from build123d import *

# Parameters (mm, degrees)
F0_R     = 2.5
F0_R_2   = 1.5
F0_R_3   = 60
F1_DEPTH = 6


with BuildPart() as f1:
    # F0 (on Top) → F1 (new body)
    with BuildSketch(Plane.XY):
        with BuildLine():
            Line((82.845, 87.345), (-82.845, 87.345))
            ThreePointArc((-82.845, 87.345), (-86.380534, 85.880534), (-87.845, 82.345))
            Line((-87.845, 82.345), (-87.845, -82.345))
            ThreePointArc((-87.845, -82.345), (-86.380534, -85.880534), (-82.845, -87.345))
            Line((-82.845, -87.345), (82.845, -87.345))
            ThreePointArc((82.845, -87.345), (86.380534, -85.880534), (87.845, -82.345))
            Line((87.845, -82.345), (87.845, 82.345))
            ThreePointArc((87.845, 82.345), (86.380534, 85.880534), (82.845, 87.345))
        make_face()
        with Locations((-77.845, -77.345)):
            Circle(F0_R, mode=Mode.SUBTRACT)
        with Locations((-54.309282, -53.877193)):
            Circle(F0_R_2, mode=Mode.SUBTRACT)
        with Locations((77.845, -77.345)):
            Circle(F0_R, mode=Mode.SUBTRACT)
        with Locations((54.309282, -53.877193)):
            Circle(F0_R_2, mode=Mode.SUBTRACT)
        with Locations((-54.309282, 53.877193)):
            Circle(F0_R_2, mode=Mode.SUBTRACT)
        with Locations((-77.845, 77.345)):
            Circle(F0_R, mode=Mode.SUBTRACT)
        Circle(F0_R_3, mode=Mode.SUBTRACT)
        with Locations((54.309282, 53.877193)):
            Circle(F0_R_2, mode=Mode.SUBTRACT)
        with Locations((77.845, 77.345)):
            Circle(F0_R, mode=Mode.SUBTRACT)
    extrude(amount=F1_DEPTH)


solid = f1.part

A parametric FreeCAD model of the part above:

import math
import FreeCAD as App
import Part
import Sketcher

V = App.Vector
Q = App.Units.Quantity

doc = App.newDocument("Part")
params = doc.addObject("Spreadsheet::Sheet", "Params")
for row, (alias, value) in enumerate([
    ("sketch1_diameter", "5 mm"),
    ("sketch1_diameter2", "3 mm"),
    ("sketch1_diameter3", "120 mm"),
    ("sketch1_radius", "5 mm"),
    ("sketch1_width", "165.69 mm"),
    ("pad1_length", "6 mm"),
], start=1):
    params.set(f"A{row}", alias)
    params.set(f"B{row}", "=" + value)
    params.setAlias(f"B{row}", alias)

body = doc.addObject("PartDesign::Body", "Body")

# Sketch on XY plane
sketch1 = doc.addObject("Sketcher::SketchObject", "Sketch")
body.addObject(sketch1)
sketch1.AttachmentSupport = (doc.XY_Plane, [""])
sketch1.MapMode = "FlatFace"
sketch1.addGeometry(Part.LineSegment(V(82.8, 87.3, 0), V(-82.8, 87.3, 0)), False)
sketch1.addGeometry(Part.ArcOfCircle(Part.Circle(V(-82.8, 82.3, 0), V(0, 0, 1), 5), math.radians(90), math.radians(180)), False)
sketch1.addGeometry(Part.LineSegment(V(-87.8, 82.3, 0), V(-87.8, -82.3, 0)), False)
sketch1.addGeometry(Part.ArcOfCircle(Part.Circle(V(-82.8, -82.3, 0), V(0, 0, 1), 5), math.radians(180), math.radians(270)), False)
sketch1.addGeometry(Part.LineSegment(V(-82.8, -87.3, 0), V(82.8, -87.3, 0)), False)
sketch1.addGeometry(Part.ArcOfCircle(Part.Circle(V(82.8, -82.3, 0), V(0, 0, 1), 5), math.radians(-90), math.radians(0)), False)
sketch1.addGeometry(Part.LineSegment(V(87.8, -82.3, 0), V(87.8, 82.3, 0)), False)
sketch1.addGeometry(Part.ArcOfCircle(Part.Circle(V(82.8, 82.3, 0), V(0, 0, 1), 5), math.radians(0), math.radians(90)), False)
sketch1.addGeometry(Part.Circle(V(-77.8, -77.3, 0), V(0, 0, 1), 2.5), False)
sketch1.addGeometry(Part.Circle(V(-54.3, -53.9, 0), V(0, 0, 1), 1.5), False)
sketch1.addGeometry(Part.Circle(V(77.8, -77.3, 0), V(0, 0, 1), 2.5), False)
sketch1.addGeometry(Part.Circle(V(54.3, -53.9, 0), V(0, 0, 1), 1.5), False)
sketch1.addGeometry(Part.Circle(V(-54.3, 53.9, 0), V(0, 0, 1), 1.5), False)
sketch1.addGeometry(Part.Circle(V(-77.8, 77.3, 0), V(0, 0, 1), 2.5), False)
sketch1.addGeometry(Part.Circle(V(0, 0, 0), V(0, 0, 1), 60), False)
sketch1.addGeometry(Part.Circle(V(54.3, 53.9, 0), V(0, 0, 1), 1.5), False)
sketch1.addGeometry(Part.Circle(V(77.8, 77.3, 0), V(0, 0, 1), 2.5), False)
sketch1.addConstraint(Sketcher.Constraint("Tangent", 0, 2, 1, 1))
sketch1.addConstraint(Sketcher.Constraint("Tangent", 1, 2, 2, 1))
sketch1.addConstraint(Sketcher.Constraint("Tangent", 2, 2, 3, 1))
sketch1.addConstraint(Sketcher.Constraint("Tangent", 3, 2, 4, 1))
sketch1.addConstraint(Sketcher.Constraint("Tangent", 4, 2, 5, 1))
sketch1.addConstraint(Sketcher.Constraint("Tangent", 5, 2, 6, 1))
sketch1.addConstraint(Sketcher.Constraint("Tangent", 6, 2, 7, 1))
sketch1.addConstraint(Sketcher.Constraint("Tangent", 7, 2, 0, 1))
sketch1.addConstraint(Sketcher.Constraint("Horizontal", 0))
sketch1.addConstraint(Sketcher.Constraint("Vertical", 2))
sketch1.addConstraint(Sketcher.Constraint("Horizontal", 4))
sketch1.addConstraint(Sketcher.Constraint("Vertical", 6))
sketch1.addConstraint(Sketcher.Constraint("Coincident", 14, 3, -1, 1))
sketch1.addConstraint(Sketcher.Constraint("Equal", 1, 3))
sketch1.addConstraint(Sketcher.Constraint("Equal", 3, 5))
sketch1.addConstraint(Sketcher.Constraint("Equal", 5, 7))
sketch1.addConstraint(Sketcher.Constraint("Equal", 8, 10))
sketch1.addConstraint(Sketcher.Constraint("Equal", 9, 11))
sketch1.addConstraint(Sketcher.Constraint("Equal", 11, 12))
sketch1.addConstraint(Sketcher.Constraint("Equal", 10, 13))
sketch1.addConstraint(Sketcher.Constraint("Equal", 12, 15))
sketch1.addConstraint(Sketcher.Constraint("Equal", 13, 16))
sketch1.addConstraint(Sketcher.Constraint("Symmetric", 1, 3, 5, 3, -1, 1))
sketch1.addConstraint(Sketcher.Constraint("Symmetric", 11, 3, 12, 3, -1, 1))
sketch1.addConstraint(Sketcher.Constraint("Symmetric", 10, 3, 13, 3, -1, 1))
sketch1.addConstraint(Sketcher.Constraint("Symmetric", 9, 3, 15, 3, -1, 1))
sketch1.addConstraint(Sketcher.Constraint("Symmetric", 8, 3, 16, 3, -1, 1))
sketch1.addConstraint(Sketcher.Constraint("Symmetric", 8, 3, 10, 3, -2))
sketch1.addConstraint(Sketcher.Constraint("Symmetric", 9, 3, 11, 3, -2))
sketch1.addConstraint(Sketcher.Constraint("Diameter", 8, Q("5 mm")))
sketch1.addConstraint(Sketcher.Constraint("Diameter", 9, Q("3 mm")))
sketch1.addConstraint(Sketcher.Constraint("Diameter", 14, Q("120 mm")))
sketch1.addConstraint(Sketcher.Constraint("Radius", 1, Q("5 mm")))
sketch1.addConstraint(Sketcher.Constraint("DistanceX", 3, 3, 8, 3, Q("5 mm")))
sketch1.addConstraint(Sketcher.Constraint("DistanceY", 3, 3, 8, 3, Q("5 mm")))
sketch1.addConstraint(Sketcher.Constraint("DistanceX", 0, 2, 0, 1, Q("165.69 mm")))
sketch1.addConstraint(Sketcher.Constraint("DistanceY", 2, 2, 2, 1, Q("164.69 mm")))
sketch1.addConstraint(Sketcher.Constraint("DistanceX", 3, 3, 9, 3, Q("28.535718 mm")))
sketch1.addConstraint(Sketcher.Constraint("DistanceY", 9, 3, -1, 1, Q("53.877193 mm")))
sketch1.setExpression("Constraints[29]", "Params.sketch1_diameter")
sketch1.setExpression("Constraints[30]", "Params.sketch1_diameter2")
sketch1.setExpression("Constraints[31]", "Params.sketch1_diameter3")
sketch1.setExpression("Constraints[32]", "Params.sketch1_radius")
sketch1.setExpression("Constraints[35]", "Params.sketch1_width")
pad1 = doc.addObject("PartDesign::Pad", "Pad")
body.addObject(pad1)
pad1.Profile = sketch1
pad1.setExpression("Length", "Params.pad1_length")

doc.recompute()
